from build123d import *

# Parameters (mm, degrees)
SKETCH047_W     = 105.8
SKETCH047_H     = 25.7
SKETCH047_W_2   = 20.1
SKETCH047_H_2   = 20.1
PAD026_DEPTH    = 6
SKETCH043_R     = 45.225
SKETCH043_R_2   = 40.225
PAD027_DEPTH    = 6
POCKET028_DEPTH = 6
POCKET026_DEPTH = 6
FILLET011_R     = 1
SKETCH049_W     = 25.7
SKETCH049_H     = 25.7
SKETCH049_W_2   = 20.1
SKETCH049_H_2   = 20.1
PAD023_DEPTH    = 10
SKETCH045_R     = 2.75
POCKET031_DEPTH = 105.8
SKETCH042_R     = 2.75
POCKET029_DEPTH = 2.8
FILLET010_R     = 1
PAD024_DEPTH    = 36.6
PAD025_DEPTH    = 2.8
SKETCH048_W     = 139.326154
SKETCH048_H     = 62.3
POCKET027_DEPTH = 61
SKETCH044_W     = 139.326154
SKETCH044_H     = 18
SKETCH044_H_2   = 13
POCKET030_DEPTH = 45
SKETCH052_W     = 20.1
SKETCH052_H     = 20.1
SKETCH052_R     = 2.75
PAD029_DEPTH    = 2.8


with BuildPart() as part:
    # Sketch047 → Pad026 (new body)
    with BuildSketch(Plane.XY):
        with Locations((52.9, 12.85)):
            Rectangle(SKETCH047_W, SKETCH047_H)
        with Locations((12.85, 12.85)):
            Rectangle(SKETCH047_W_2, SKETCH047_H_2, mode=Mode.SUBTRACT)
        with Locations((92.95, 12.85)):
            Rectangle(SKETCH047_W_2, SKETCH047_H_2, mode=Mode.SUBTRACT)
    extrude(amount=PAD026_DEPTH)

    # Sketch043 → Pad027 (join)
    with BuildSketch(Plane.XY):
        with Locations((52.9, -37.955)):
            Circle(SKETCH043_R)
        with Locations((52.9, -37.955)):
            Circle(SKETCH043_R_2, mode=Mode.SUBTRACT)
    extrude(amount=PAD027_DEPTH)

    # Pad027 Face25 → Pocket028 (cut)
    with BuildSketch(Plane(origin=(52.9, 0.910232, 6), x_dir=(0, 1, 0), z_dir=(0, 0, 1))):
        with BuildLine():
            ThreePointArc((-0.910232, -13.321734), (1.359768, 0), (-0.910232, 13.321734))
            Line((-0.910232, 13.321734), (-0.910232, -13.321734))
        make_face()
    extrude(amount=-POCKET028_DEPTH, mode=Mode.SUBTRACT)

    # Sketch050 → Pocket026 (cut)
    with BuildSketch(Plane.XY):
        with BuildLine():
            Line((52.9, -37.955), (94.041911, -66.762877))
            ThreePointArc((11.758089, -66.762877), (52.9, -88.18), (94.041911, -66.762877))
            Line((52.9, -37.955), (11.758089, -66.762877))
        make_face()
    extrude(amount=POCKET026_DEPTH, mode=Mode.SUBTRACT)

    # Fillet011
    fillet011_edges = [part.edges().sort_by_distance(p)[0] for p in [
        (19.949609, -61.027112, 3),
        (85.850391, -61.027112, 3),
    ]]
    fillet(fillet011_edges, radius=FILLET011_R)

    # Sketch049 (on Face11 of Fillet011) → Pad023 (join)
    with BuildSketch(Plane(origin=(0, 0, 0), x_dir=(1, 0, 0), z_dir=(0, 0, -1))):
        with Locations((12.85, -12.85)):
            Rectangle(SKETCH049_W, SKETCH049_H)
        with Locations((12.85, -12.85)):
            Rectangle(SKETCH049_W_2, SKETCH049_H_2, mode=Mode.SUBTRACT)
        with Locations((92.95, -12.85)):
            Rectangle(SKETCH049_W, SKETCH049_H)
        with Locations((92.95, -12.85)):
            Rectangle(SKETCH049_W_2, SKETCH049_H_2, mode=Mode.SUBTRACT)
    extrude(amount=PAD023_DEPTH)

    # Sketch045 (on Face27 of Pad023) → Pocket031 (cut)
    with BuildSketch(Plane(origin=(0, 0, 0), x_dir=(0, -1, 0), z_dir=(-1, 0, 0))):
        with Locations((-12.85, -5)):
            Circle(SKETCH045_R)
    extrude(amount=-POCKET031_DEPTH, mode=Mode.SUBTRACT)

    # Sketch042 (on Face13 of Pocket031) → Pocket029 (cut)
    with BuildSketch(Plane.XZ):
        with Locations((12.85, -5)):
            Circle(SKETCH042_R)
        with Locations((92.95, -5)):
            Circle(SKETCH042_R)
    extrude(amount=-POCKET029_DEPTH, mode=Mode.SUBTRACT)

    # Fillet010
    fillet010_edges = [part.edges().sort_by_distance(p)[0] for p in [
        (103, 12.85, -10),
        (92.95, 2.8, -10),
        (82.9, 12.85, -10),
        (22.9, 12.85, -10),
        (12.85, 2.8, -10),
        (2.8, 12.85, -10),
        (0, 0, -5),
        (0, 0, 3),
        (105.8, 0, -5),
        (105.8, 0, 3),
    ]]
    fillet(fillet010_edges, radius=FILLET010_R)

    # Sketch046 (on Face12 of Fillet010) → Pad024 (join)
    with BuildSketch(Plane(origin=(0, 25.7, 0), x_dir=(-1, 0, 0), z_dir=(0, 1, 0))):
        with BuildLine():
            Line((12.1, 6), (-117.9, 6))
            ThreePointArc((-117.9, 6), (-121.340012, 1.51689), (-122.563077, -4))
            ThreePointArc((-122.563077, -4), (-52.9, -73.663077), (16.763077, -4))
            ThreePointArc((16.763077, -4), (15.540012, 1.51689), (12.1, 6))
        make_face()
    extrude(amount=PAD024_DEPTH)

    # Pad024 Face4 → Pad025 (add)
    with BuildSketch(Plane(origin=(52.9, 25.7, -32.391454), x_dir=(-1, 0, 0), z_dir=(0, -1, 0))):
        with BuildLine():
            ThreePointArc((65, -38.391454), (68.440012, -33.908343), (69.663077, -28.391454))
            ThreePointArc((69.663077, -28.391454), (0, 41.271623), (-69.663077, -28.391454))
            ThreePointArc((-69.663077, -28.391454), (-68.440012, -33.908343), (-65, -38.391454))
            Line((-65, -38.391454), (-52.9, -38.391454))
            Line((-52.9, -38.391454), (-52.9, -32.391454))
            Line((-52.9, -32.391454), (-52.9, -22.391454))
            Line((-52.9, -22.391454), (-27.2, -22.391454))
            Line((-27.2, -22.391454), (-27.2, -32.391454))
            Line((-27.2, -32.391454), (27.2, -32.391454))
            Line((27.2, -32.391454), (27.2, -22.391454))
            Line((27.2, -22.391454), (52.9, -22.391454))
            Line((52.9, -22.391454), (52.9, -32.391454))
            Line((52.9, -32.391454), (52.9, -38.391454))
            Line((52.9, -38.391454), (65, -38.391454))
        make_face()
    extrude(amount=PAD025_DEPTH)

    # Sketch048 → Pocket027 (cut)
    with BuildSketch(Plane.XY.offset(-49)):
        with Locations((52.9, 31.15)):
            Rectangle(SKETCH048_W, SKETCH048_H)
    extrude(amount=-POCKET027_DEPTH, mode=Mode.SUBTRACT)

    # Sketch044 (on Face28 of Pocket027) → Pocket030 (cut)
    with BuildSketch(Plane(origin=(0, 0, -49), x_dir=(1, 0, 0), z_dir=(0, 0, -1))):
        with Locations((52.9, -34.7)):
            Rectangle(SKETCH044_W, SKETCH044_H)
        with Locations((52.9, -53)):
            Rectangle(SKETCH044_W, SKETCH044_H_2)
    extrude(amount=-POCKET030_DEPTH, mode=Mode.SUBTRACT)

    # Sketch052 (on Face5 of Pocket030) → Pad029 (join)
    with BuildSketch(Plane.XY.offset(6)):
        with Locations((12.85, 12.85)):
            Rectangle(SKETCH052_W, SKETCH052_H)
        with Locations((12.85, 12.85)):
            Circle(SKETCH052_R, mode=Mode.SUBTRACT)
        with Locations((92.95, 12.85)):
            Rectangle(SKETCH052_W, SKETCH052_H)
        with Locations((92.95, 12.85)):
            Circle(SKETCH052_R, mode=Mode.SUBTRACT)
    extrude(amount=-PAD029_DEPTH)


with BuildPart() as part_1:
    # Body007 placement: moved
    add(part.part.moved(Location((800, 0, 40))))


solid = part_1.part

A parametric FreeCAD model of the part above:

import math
import FreeCAD as App
import Part
import Sketcher
from FreeCAD import Vector
Q = App.Units.Quantity


def edges_at(feature, points):
    """Names of the edges that pass closest to the given points."""
    edges = feature.Shape.Edges
    near = lambda p: min(range(len(edges)), key=lambda i: edges[i].distToShape(Part.Vertex(*p))[0])
    return sorted({f"Edge{near(p) + 1}" for p in points})

doc = App.newDocument("Part")
body = doc.addObject("PartDesign::Body", "Body")

sketch1 = body.newObject("Sketcher::SketchObject", "Sketch")
sketch1.AttachmentSupport = (doc.getObject("XY_Plane"), [""])
sketch1.MapMode = "FlatFace"
sketch1.addGeometry([
    Part.LineSegment(Vector(0, 26, 0), Vector(0, 0, 0)),
    Part.LineSegment(Vector(0, 0, 0), Vector(106, 0, 0)),
    Part.LineSegment(Vector(106, 0, 0), Vector(106, 26, 0)),
    Part.LineSegment(Vector(106, 26, 0), Vector(0, 26, 0)),
    Part.LineSegment(Vector(23, 3, 0), Vector(3, 3, 0)),
    Part.LineSegment(Vector(3, 3, 0), Vector(3, 23, 0)),
    Part.LineSegment(Vector(3, 23, 0), Vector(23, 23, 0)),
    Part.LineSegment(Vector(23, 23, 0), Vector(23, 3, 0)),
    Part.LineSegment(Vector(103, 3, 0), Vector(83, 3, 0)),
    Part.LineSegment(Vector(83, 3, 0), Vector(83, 23, 0)),
    Part.LineSegment(Vector(83, 23, 0), Vector(103, 23, 0)),
    Part.LineSegment(Vector(103, 23, 0), Vector(103, 3, 0)),
], False)
sketch1.addConstraint([
    Sketcher.Constraint("Coincident", 0, 2, 1, 1),
    Sketcher.Constraint("Coincident", 1, 2, 2, 1),
    Sketcher.Constraint("Coincident", 2, 2, 3, 1),
    Sketcher.Constraint("Coincident", 3, 2, 0, 1),
    Sketcher.Constraint("Coincident", 4, 2, 5, 1),
    Sketcher.Constraint("Coincident", 5, 2, 6, 1),
    Sketcher.Constraint("Coincident", 6, 2, 7, 1),
    Sketcher.Constraint("Coincident", 7, 2, 4, 1),
    Sketcher.Constraint("Coincident", 8, 2, 9, 1),
    Sketcher.Constraint("Coincident", 9, 2, 10, 1),
    Sketcher.Constraint("Coincident", 10, 2, 11, 1),
    Sketcher.Constraint("Coincident", 11, 2, 8, 1),
    Sketcher.Constraint("Vertical", 0),
    Sketcher.Constraint("Horizontal", 1),
    Sketcher.Constraint("Vertical", 2),
    Sketcher.Constraint("Horizontal", 3),
    Sketcher.Constraint("Horizontal", 4),
    Sketcher.Constraint("Vertical", 5),
    Sketcher.Constraint("Horizontal", 6),
    Sketcher.Constraint("Vertical", 7),
    Sketcher.Constraint("Horizontal", 8),
    Sketcher.Constraint("Vertical", 9),
    Sketcher.Constraint("Horizontal", 10),
    Sketcher.Constraint("Vertical", 11),
    Sketcher.Constraint("Coincident", 0, 2, -1, 1),
    Sketcher.Constraint("Horizontal", 7, 2, 8, 2),
    Sketcher.Constraint("Horizontal", 6, 2, 9, 2),
    Sketcher.Constraint("Equal", 6, 8),
    Sketcher.Constraint("Equal", 10, 5),
    Sketcher.Constraint("DistanceX", 1, 1, 1, 2, Q("105.8 mm")),
    Sketcher.Constraint("DistanceX", 4, 2, 4, 1, Q("20.1 mm")),
    Sketcher.Constraint("DistanceY", 0, 2, 0, 1, Q("25.7 mm")),
    Sketcher.Constraint("DistanceX", -1, 1, 10, 2, Q("103 mm")),
    Sketcher.Constraint("DistanceX", 4, 2, 1, 2, Q("103 mm")),
    Sketcher.Constraint("DistanceY", -1, 1, 4, 2, Q("2.8 mm")),
])
pad1 = body.newObject("PartDesign::Pad", "Pad")
pad1.Profile = sketch1
pad1.Length = 6

sketch2 = body.newObject("Sketcher::SketchObject", "Sketch001")
sketch2.AttachmentSupport = (doc.getObject("XY_Plane"), [""])
sketch2.MapMode = "FlatFace"
sketch2.addGeometry([
    Part.Circle(Vector(53, -38, 0), Vector(0, 0, 1), 45),
    Part.Circle(Vector(53, -38, 0), Vector(0, 0, 1), 40),
], False)
sketch2.addConstraint([
    Sketcher.Constraint("Coincident", 1, 3, 0, 3),
    Sketcher.Constraint("Diameter", 0, Q("90.45 mm")),
    Sketcher.Constraint("Diameter", 1, Q("80.45 mm")),
    Sketcher.Constraint("DistanceX", -1, 1, 0, 3, Q("52.9 mm")),
    Sketcher.Constraint("DistanceY", 0, 3, -1, 1, Q("37.955 mm")),
])
pad2 = body.newObject("PartDesign::Pad", "Pad001")
pad2.Profile = sketch2
pad2.Length = 6

sketch3 = body.newObject("Sketcher::SketchObject", "Sketch002")
sketch3.AttachmentSupport = (doc.getObject("XY_Plane"), [""])
sketch3.MapMode = "FlatFace"
sketch3.AttachmentOffset = App.Placement(Vector(0, 0, 6), App.Rotation())
sketch3.addGeometry([
    Part.ArcOfCircle(Part.Circle(Vector(53, -38, 0), Vector(0, 0, 1), 40), math.radians(71), math.radians(109)),
    Part.LineSegment(Vector(40, 0, 0), Vector(66, 0, 0)),
], False)
sketch3.addConstraint([
    Sketcher.Constraint("Coincident", 0, 1, 1, 2),
    Sketcher.Constraint("Coincident", 1, 1, 0, 2),
    Sketcher.Constraint("Horizontal", 1),
    Sketcher.Constraint("PointOnObject", 0, 1, -1),
    Sketcher.Constraint("Radius", 0, Q("40.224999 mm")),
    Sketcher.Constraint("DistanceX", -1, 1, 0, 3, Q("52.9 mm")),
    Sketcher.Constraint("DistanceY", 0, 3, -1, 1, Q("37.954999 mm")),
])
pocket1 = body.newObject("PartDesign::Pocket", "Pocket")
pocket1.Profile = sketch3
pocket1.Length = 6

sketch4 = body.newObject("Sketcher::SketchObject", "Sketch003")
sketch4.AttachmentSupport = (doc.getObject("XY_Plane"), [""])
sketch4.MapMode = "FlatFace"
sketch4.addGeometry([
    Part.LineSegment(Vector(94, -67, 0), Vector(53, -38, 0)),
    Part.LineSegment(Vector(53, -38, 0), Vector(12, -67, 0)),
    Part.ArcOfCircle(Part.Circle(Vector(53, -38, 0), Vector(0, 0, 1), 50), math.radians(-145), math.radians(-35)),
], False)
sketch4.addConstraint([
    Sketcher.Constraint("Coincident", 0, 2, 1, 1),
    Sketcher.Constraint("Coincident", 1, 2, 2, 1),
    Sketcher.Constraint("Coincident", 2, 2, 0, 1),
    Sketcher.Constraint("Coincident", 0, 2, 2, 3),
    Sketcher.Constraint("Horizontal", 1, 2, 2, 2),
    Sketcher.Constraint("Angle", 0, Q("144.999999 deg")),
    Sketcher.Constraint("Radius", 2, Q("50.225 mm")),
    Sketcher.Constraint("DistanceX", -1, 1, 2, 3, Q("52.9 mm")),
    Sketcher.Constraint("DistanceY", 2, 3, -1, 1, Q("37.955 mm")),
])
pocket2 = body.newObject("PartDesign::Pocket", "Pocket001")
pocket2.Profile = sketch4
pocket2.Length = 6
pocket2.Reversed = True
doc.recompute()

fillet = body.newObject("PartDesign::Fillet", "Fillet")
fillet.Base = (pocket2, edges_at(pocket2, [(19.95, -61.027, 3), (85.85, -61.027, 3)]))
fillet.Radius = 1

sketch5 = body.newObject("Sketcher::SketchObject", "Sketch004")
sketch5.AttachmentSupport = (doc.getObject("XY_Plane"), [""])
sketch5.MapMode = "FlatFace"
sketch5.addGeometry([
    Part.LineSegment(Vector(0, 0, 0), Vector(0, 26, 0)),
    Part.LineSegment(Vector(0, 26, 0), Vector(26, 26, 0)),
    Part.LineSegment(Vector(26, 26, 0), Vector(26, 0, 0)),
    Part.LineSegment(Vector(26, 0, 0), Vector(0, 0, 0)),
    Part.LineSegment(Vector(23, 23, 0), Vector(3, 23, 0)),
    Part.LineSegment(Vector(3, 23, 0), Vector(3, 3, 0)),
    Part.LineSegment(Vector(3, 3, 0), Vector(23, 3, 0)),
    Part.LineSegment(Vector(23, 3, 0), Vector(23, 23, 0)),
    Part.LineSegment(Vector(80, 0, 0), Vector(80, 26, 0)),
    Part.LineSegment(Vector(80, 26, 0), Vector(106, 26, 0)),
    Part.LineSegment(Vector(106, 26, 0), Vector(106, 0, 0)),
    Part.LineSegment(Vector(106, 0, 0), Vector(80, 0, 0)),
    Part.LineSegment(Vector(103, 23, 0), Vector(83, 23, 0)),
    Part.LineSegment(Vector(83, 23, 0), Vector(83, 3, 0)),
    Part.LineSegment(Vector(83, 3, 0), Vector(103, 3, 0)),
    Part.LineSegment(Vector(103, 3, 0), Vector(103, 23, 0)),
], False)
sketch5.addConstraint([
    Sketcher.Constraint("Coincident", 0, 2, 1, 1),
    Sketcher.Constraint("Coincident", 1, 2, 2, 1),
    Sketcher.Constraint("Coincident", 2, 2, 3, 1),
    Sketcher.Constraint("Coincident", 3, 2, 0, 1),
    Sketcher.Constraint("Coincident", 4, 2, 5, 1),
    Sketcher.Constraint("Coincident", 5, 2, 6, 1),
    Sketcher.Constraint("Coincident", 6, 2, 7, 1),
    Sketcher.Constraint("Coincident", 7, 2, 4, 1),
    Sketcher.Constraint("Coincident", 8, 2, 9, 1),
    Sketcher.Constraint("Coincident", 9, 2, 10, 1),
    Sketcher.Constraint("Coincident", 10, 2, 11, 1),
    Sketcher.Constraint("Coincident", 11, 2, 8, 1),
    Sketcher.Constraint("Coincident", 12, 2, 13, 1),
    Sketcher.Constraint("Coincident", 13, 2, 14, 1),
    Sketcher.Constraint("Coincident", 14, 2, 15, 1),
    Sketcher.Constraint("Coincident", 15, 2, 12, 1),
    Sketcher.Constraint("Vertical", 0),
    Sketcher.Constraint("Horizontal", 1),
    Sketcher.Constraint("Vertical", 2),
    Sketcher.Constraint("Horizontal", 3),
    Sketcher.Constraint("Horizontal", 4),
    Sketcher.Constraint("Vertical", 5),
    Sketcher.Constraint("Horizontal", 6),
    Sketcher.Constraint("Vertical", 7),
    Sketcher.Constraint("Vertical", 8),
    Sketcher.Constraint("Horizontal", 9),
    Sketcher.Constraint("Vertical", 10),
    Sketcher.Constraint("Horizontal", 11),
    Sketcher.Constraint("Horizontal", 12),
    Sketcher.Constraint("Vertical", 13),
    Sketcher.Constraint("Horizontal", 14),
    Sketcher.Constraint("Vertical", 15),
    Sketcher.Constraint("Coincident", 3, 2, -1, 1),
    Sketcher.Constraint("PointOnObject", 10, 2, -1),
    Sketcher.Constraint("Horizontal", 1, 2, 8, 2),
    Sketcher.Constraint("Horizontal", 7, 2, 12, 2),
    Sketcher.Constraint("Horizontal", 6, 2, 13, 2),
    Sketcher.Constraint("Equal", 3, 9),
    Sketcher.Constraint("Equal", 6, 12),
    Sketcher.Constraint("Equal", 11, 0),
    Sketcher.Constraint("Equal", 14, 5),
    Sketcher.Constraint("DistanceX", 1, 1, 1, 2, Q("25.7 mm")),
    Sketcher.Constraint("DistanceX", 4, 2, 4, 1, Q("20.1 mm")),
    Sketcher.Constraint("DistanceX", -1, 1, 14, 2, Q("103 mm")),
    Sketcher.Constraint("DistanceX", -1, 1, 4, 2, Q("2.8 mm")),
    Sketcher.Constraint("DistanceY", -1, 1, 4, 2, Q("22.9 mm")),
    Sketcher.Constraint("DistanceX", -1, 1, 8, 2, Q("80.1 mm")),
])
pad3 = body.newObject("PartDesign::Pad", "Pad002")
pad3.Profile = sketch5
pad3.Length = 10
pad3.Reversed = True

sketch6 = body.newObject("Sketcher::SketchObject", "Sketch005")
sketch6.AttachmentSupport = (doc.getObject("YZ_Plane"), [""])
sketch6.MapMode = "FlatFace"
sketch6.addGeometry(Part.Circle(Vector(12.8, -5, 0), Vector(0, 0, 1), 2.8), False)
sketch6.addConstraint([
    Sketcher.Constraint("Diameter", 0, Q("5.5 mm")),
    Sketcher.Constraint("DistanceY", 0, 3, -1, 1, Q("5 mm")),
    Sketcher.Constraint("DistanceX", -1, 1, 0, 3, Q("12.85 mm")),
])
pocket3 = body.newObject("PartDesign::Pocket", "Pocket002")
pocket3.Profile = sketch6
pocket3.Length = 105.8
pocket3.Reversed = True

sketch7 = body.newObject("Sketcher::SketchObject", "Sketch006")
sketch7.AttachmentSupport = (doc.getObject("XZ_Plane"), [""])
sketch7.MapMode = "FlatFace"
sketch7.addGeometry([
    Part.Circle(Vector(12.8, -5, 0), Vector(0, 0, 1), 2.8),
    Part.Circle(Vector(93, -5, 0), Vector(0, 0, 1), 2.8),
], False)
sketch7.addConstraint([
    Sketcher.Constraint("Equal", 0, 1),
    Sketcher.Constraint("Horizontal", 0, 3, 1, 3),
    Sketcher.Constraint("Diameter", 0, Q("5.5 mm")),
    Sketcher.Constraint("DistanceY", 0, 3, -1, 1, Q("5 mm")),
    Sketcher.Constraint("DistanceX", 0, 3, 1, 3, Q("80.1 mm")),
    Sketcher.Constraint("DistanceX", -1, 1, 0, 3, Q("12.85 mm")),
])
pocket4 = body.newObject("PartDesign::Pocket", "Pocket003")
pocket4.Profile = sketch7
pocket4.Length = 2.8
doc.recompute()

fillet2 = body.newObject("PartDesign::Fillet", "Fillet001")
fillet2.Base = (pocket4, edges_at(pocket4, [
    (103, 12.85, -10),
    (92.95, 2.8, -10),
    (82.9, 12.85, -10),
    (22.9, 12.85, -10),
    (12.85, 2.8, -10),
    (2.8, 12.85, -10),
    (0, 0, -2),
    (0, 0, -2),
    (105.8, 0, -2),
    (105.8, 0, -2),
]))
fillet2.Radius = 1

sketch8 = body.newObject("Sketcher::SketchObject", "Sketch007")
sketch8.AttachmentSupport = (doc.getObject("XZ_Plane"), [""])
sketch8.MapMode = "FlatFace"
sketch8.AttachmentOffset = App.Placement(Vector(0, 0, -25.7), App.Rotation())
sketch8.addGeometry([
    Part.LineSegment(Vector(-12, 6, 0), Vector(118, 6, 0)),
    Part.ArcOfCircle(Part.Circle(Vector(110, -4, 0), Vector(0, 0, 1), 13), math.radians(0), math.radians(50)),
    Part.ArcOfCircle(Part.Circle(Vector(53, -4, 0), Vector(0, 0, 1), 70), math.radians(180), math.radians(360)),
    Part.ArcOfCircle(Part.Circle(Vector(-4, -4, 0), Vector(0, 0, 1), 13), math.radians(130), math.radians(180)),
], False)
sketch8.addConstraint([
    Sketcher.Constraint("Coincident", 0, 2, 1, 2),
    Sketcher.Constraint("Tangent", 1, 1, 2, 2),
    Sketcher.Constraint("Tangent", 2, 1, 3, 2),
    Sketcher.Constraint("Coincident", 3, 1, 0, 1),
    Sketcher.Constraint("Horizontal", 0),
    Sketcher.Constraint("Equal", 1, 3),
    Sketcher.Constraint("Horizontal", 1, 3, 2, 3),
    Sketcher.Constraint("Horizontal", 2, 3, 3, 3),
    Sketcher.Constraint("DistanceX", 0, 1, 0, 2, Q("130 mm")),
    Sketcher.Constraint("DistanceY", 1, 3, -1, 1, Q("3.999999 mm")),
    Sketcher.Constraint("DistanceY", -1, 1, 0, 2, Q("6 mm")),
    Sketcher.Constraint("DistanceX", -1, 1, 2, 3, Q("52.9 mm")),
    Sketcher.Constraint("Radius", 1, Q("13.05407 mm")),
])
pad4 = body.newObject("PartDesign::Pad", "Pad003")
pad4.Profile = sketch8
pad4.Length = 36.6
pad4.Reversed = True

sketch9 = body.newObject("Sketcher::SketchObject", "Sketch008")
sketch9.AttachmentSupport = (doc.getObject("XZ_Plane"), [""])
sketch9.MapMode = "FlatFace"
sketch9.AttachmentOffset = App.Placement(Vector(0, 0, -25.7), App.Rotation())
sketch9.addGeometry([
    Part.ArcOfCircle(Part.Circle(Vector(-4, -4, 0), Vector(0, 0, 1), 13), math.radians(130), math.radians(180)),
    Part.ArcOfCircle(Part.Circle(Vector(53, -4, 0), Vector(0, 0, 1), 70), math.radians(180), math.radians(360)),
    Part.ArcOfCircle(Part.Circle(Vector(110, -4, 0), Vector(0, 0, 1), 13), math.radians(0), math.radians(50)),
    Part.LineSegment(Vector(118, 6, 0), Vector(106, 6, 0)),
    Part.LineSegment(Vector(106, 6, 0), Vector(106, -10, 0)),
    Part.LineSegment(Vector(106, -10, 0), Vector(80, -10, 0)),
    Part.LineSegment(Vector(80, -10, 0), Vector(80, 0, 0)),
    Part.LineSegment(Vector(80, 0, 0), Vector(26, 0, 0)),
    Part.LineSegment(Vector(26, 0, 0), Vector(26, -10, 0)),
    Part.LineSegment(Vector(26, -10, 0), Vector(0, -10, 0)),
    Part.LineSegment(Vector(0, -10, 0), Vector(0, 6, 0)),
    Part.LineSegment(Vector(0, 6, 0), Vector(-12, 6, 0)),
], False)
sketch9.addConstraint([
    Sketcher.Constraint("Tangent", 0, 2, 1, 1),
    Sketcher.Constraint("Tangent", 1, 2, 2, 1),
    Sketcher.Constraint("Coincident", 2, 2, 3, 1),
    Sketcher.Constraint("Coincident", 3, 2, 4, 1),
    Sketcher.Constraint("Coincident", 4, 2, 5, 1),
    Sketcher.Constraint("Coincident", 5, 2, 6, 1),
    Sketcher.Constraint("Coincident", 6, 2, 7, 1),
    Sketcher.Constraint("Coincident", 7, 2, 8, 1),
    Sketcher.Constraint("Coincident", 8, 2, 9, 1),
    Sketcher.Constraint("Coincident", 9, 2, 10, 1),
    Sketcher.Constraint("Coincident", 10, 2, 11, 1),
    Sketcher.Constraint("Coincident", 11, 2, 0, 1),
    Sketcher.Constraint("Horizontal", 3),
    Sketcher.Constraint("Vertical", 4),
    Sketcher.Constraint("Horizontal", 5),
    Sketcher.Constraint("Vertical", 6),
    Sketcher.Constraint("Horizontal", 7),
    Sketcher.Constraint("Vertical", 8),
    Sketcher.Constraint("Horizontal", 9),
    Sketcher.Constraint("Vertical", 10),
    Sketcher.Constraint("Horizontal", 11),
    Sketcher.Constraint("Equal", 0, 2),
    Sketcher.Constraint("PointOnObject", 6, 2, -1),
    Sketcher.Constraint("PointOnObject", 9, 2, -2),
    Sketcher.Constraint("Horizontal", 0, 3, 1, 3),
    Sketcher.Constraint("Horizontal", 1, 3, 2, 3),
    Sketcher.Constraint("Horizontal", 5, 2, 8, 2),
    Sketcher.Constraint("Horizontal", 3, 2, 10, 2),
    Sketcher.Constraint("Equal", 5, 9),
    Sketcher.Constraint("Equal", 3, 11),
    Sketcher.Constraint("DistanceY", 4, 2, 4, 1, Q("16 mm")),
    Sketcher.Constraint("DistanceY", 6, 1, 6, 2, Q("10 mm")),
    Sketcher.Constraint("DistanceX", 3, 2, 3, 1, Q("12.1 mm")),
    Sketcher.Constraint("DistanceX", 5, 2, 5, 1, Q("25.7 mm")),
    Sketcher.Constraint("DistanceX", 7, 2, 7, 1, Q("54.4 mm")),
    Sketcher.Constraint("DistanceY", 0, 3, -1, 1, Q("4.000001 mm")),
    Sketcher.Constraint("Radius", 0, Q("13.054074 mm")),
])
pad5 = body.newObject("PartDesign::Pad", "Pad004")
pad5.Profile = sketch9
pad5.Length = 2.8

sketch10 = body.newObject("Sketcher::SketchObject", "Sketch009")
sketch10.AttachmentSupport = (doc.getObject("XY_Plane"), [""])
sketch10.MapMode = "FlatFace"
sketch10.AttachmentOffset = App.Placement(Vector(0, 0, -49), App.Rotation())
sketch10.addGeometry([
    Part.LineSegment(Vector(-17, 62, 0), Vector(-17, 0, 0)),
    Part.LineSegment(Vector(-17, 0, 0), Vector(123, 0, 0)),
    Part.LineSegment(Vector(123, 0, 0), Vector(123, 62, 0)),
    Part.LineSegment(Vector(123, 62, 0), Vector(-17, 62, 0)),
], False)
sketch10.addConstraint([
    Sketcher.Constraint("Coincident", 0, 2, 1, 1),
    Sketcher.Constraint("Coincident", 1, 2, 2, 1),
    Sketcher.Constraint("Coincident", 2, 2, 3, 1),
    Sketcher.Constraint("Coincident", 3, 2, 0, 1),
    Sketcher.Constraint("Vertical", 0),
    Sketcher.Constraint("Horizontal", 1),
    Sketcher.Constraint("Vertical", 2),
    Sketcher.Constraint("Horizontal", 3),
    Sketcher.Constraint("PointOnObject", 0, 2, -1),
    Sketcher.Constraint("DistanceY", 0, 2, 0, 1, Q("62.3 mm")),
    Sketcher.Constraint("DistanceX", 1, 1, 1, 2, Q("139.326154 mm")),
    Sketcher.Constraint("DistanceX", 0, 2, -1, 1, Q("16.763077 mm")),
])
pocket5 = body.newObject("PartDesign::Pocket", "Pocket004")
pocket5.Profile = sketch10
pocket5.Length = 61

sketch11 = body.newObject("Sketcher::SketchObject", "Sketch010")
sketch11.AttachmentSupport = (doc.getObject("XY_Plane"), [""])
sketch11.MapMode = "FlatFace"
sketch11.AttachmentOffset = App.Placement(Vector(0, 0, -49), App.Rotation())
sketch11.addGeometry([
    Part.LineSegment(Vector(-17, 26, 0), Vector(-17, 44, 0)),
    Part.LineSegment(Vector(-17, 44, 0), Vector(123, 44, 0)),
    Part.LineSegment(Vector(123, 44, 0), Vector(123, 26, 0)),
    Part.LineSegment(Vector(123, 26, 0), Vector(-17, 26, 0)),
    Part.LineSegment(Vector(-17, 46, 0), Vector(-17, 60, 0)),
    Part.LineSegment(Vector(-17, 60, 0), Vector(123, 60, 0)),
    Part.LineSegment(Vector(123, 60, 0), Vector(123, 46, 0)),
    Part.LineSegment(Vector(123, 46, 0), Vector(-17, 46, 0)),
], False)
sketch11.addConstraint([
    Sketcher.Constraint("Coincident", 0, 2, 1, 1),
    Sketcher.Constraint("Coincident", 1, 2, 2, 1),
    Sketcher.Constraint("Coincident", 2, 2, 3, 1),
    Sketcher.Constraint("Coincident", 3, 2, 0, 1),
    Sketcher.Constraint("Coincident", 4, 2, 5, 1),
    Sketcher.Constraint("Coincident", 5, 2, 6, 1),
    Sketcher.Constraint("Coincident", 6, 2, 7, 1),
    Sketcher.Constraint("Coincident", 7, 2, 4, 1),
    Sketcher.Constraint("Vertical", 0),
    Sketcher.Constraint("Horizontal", 1),
    Sketcher.Constraint("Vertical", 2),
    Sketcher.Constraint("Horizontal", 3),
    Sketcher.Constraint("Vertical", 4),
    Sketcher.Constraint("Horizontal", 5),
    Sketcher.Constraint("Vertical", 6),
    Sketcher.Constraint("Horizontal", 7),
    Sketcher.Constraint("Vertical", 3, 2, 4, 2),
    Sketcher.Constraint("Vertical", 2, 2, 5, 2),
    Sketcher.Constraint("DistanceY", 0, 1, 0, 2, Q("18 mm")),
    Sketcher.Constraint("DistanceY", 4, 1, 4, 2, Q("13 mm")),
    Sketcher.Constraint("DistanceY", -1, 1, 0, 2, Q("43.7 mm")),
    Sketcher.Constraint("DistanceY", -1, 1, 4, 2, Q("59.5 mm")),
    Sketcher.Constraint("DistanceX", 1, 1, 1, 2, Q("139.326154 mm")),
    Sketcher.Constraint("DistanceX", 0, 2, -1, 1, Q("16.763077 mm")),
])
pocket6 = body.newObject("PartDesign::Pocket", "Pocket005")
pocket6.Profile = sketch11
pocket6.Length = 45
pocket6.Reversed = True

sketch12 = body.newObject("Sketcher::SketchObject", "Sketch011")
sketch12.AttachmentSupport = (doc.getObject("XY_Plane"), [""])
sketch12.MapMode = "FlatFace"
sketch12.AttachmentOffset = App.Placement(Vector(0, 0, 6), App.Rotation())
sketch12.addGeometry([
    Part.LineSegment(Vector(2.8, 22.9, 0), Vector(2.8, 2.8, 0)),
    Part.LineSegment(Vector(2.8, 2.8, 0), Vector(22.9, 2.8, 0)),
    Part.LineSegment(Vector(22.9, 2.8, 0), Vector(22.9, 22.9, 0)),
    Part.LineSegment(Vector(22.9, 22.9, 0), Vector(2.8, 22.9, 0)),
    Part.Circle(Vector(12.8, 12.8, 0), Vector(0, 0, 1), 2.8),
    Part.LineSegment(Vector(82.9, 22.9, 0), Vector(82.9, 2.8, 0)),
    Part.LineSegment(Vector(82.9, 2.8, 0), Vector(103, 2.8, 0)),
    Part.LineSegment(Vector(103, 2.8, 0), Vector(103, 22.9, 0)),
    Part.LineSegment(Vector(103, 22.9, 0), Vector(82.9, 22.9, 0)),
    Part.Circle(Vector(93, 12.8, 0), Vector(0, 0, 1), 2.8),
], False)
sketch12.addConstraint([
    Sketcher.Constraint("Coincident", 0, 2, 1, 1),
    Sketcher.Constraint("Coincident", 1, 2, 2, 1),
    Sketcher.Constraint("Coincident", 2, 2, 3, 1),
    Sketcher.Constraint("Coincident", 3, 2, 0, 1),
    Sketcher.Constraint("Coincident", 5, 2, 6, 1),
    Sketcher.Constraint("Coincident", 6, 2, 7, 1),
    Sketcher.Constraint("Coincident", 7, 2, 8, 1),
    Sketcher.Constraint("Coincident", 8, 2, 5, 1),
    Sketcher.Constraint("Vertical", 0),
    Sketcher.Constraint("Horizontal", 1),
    Sketcher.Constraint("Vertical", 2),
    Sketcher.Constraint("Horizontal", 3),
    Sketcher.Constraint("Vertical", 5),
    Sketcher.Constraint("Horizontal", 6),
    Sketcher.Constraint("Vertical", 7),
    Sketcher.Constraint("Horizontal", 8),
    Sketcher.Constraint("Equal", 4, 9),
    Sketcher.Constraint("Horizontal", 4, 3, 9, 3),
    Sketcher.Constraint("Horizontal", 1, 2, 5, 2),
    Sketcher.Constraint("Horizontal", 3, 2, 7, 2),
    Sketcher.Constraint("Equal", 3, 6),
    Sketcher.Constraint("Equal", 8, 0),
    Sketcher.Constraint("Diameter", 4, Q("5.5 mm")),
    Sketcher.Constraint("DistanceX", 1, 1, 1, 2, Q("20.1 mm")),
    Sketcher.Constraint("DistanceX", -1, 1, 6, 2, Q("103 mm")),
    Sketcher.Constraint("DistanceX", 1, 2, 5, 2, Q("60 mm")),
    Sketcher.Constraint("DistanceY", -1, 1, 0, 2, Q("2.8 mm")),
    Sketcher.Constraint("DistanceX", 4, 3, 9, 3, Q("80.1 mm")),
    Sketcher.Constraint("DistanceX", -1, 1, 4, 3, Q("12.85 mm")),
    Sketcher.Constraint("DistanceY", -1, 1, 4, 3, Q("12.85 mm")),
])
pad6 = body.newObject("PartDesign::Pad", "Pad005")
pad6.Profile = sketch12
pad6.Length = 2.8
pad6.Reversed = True
body2 = doc.addObject("PartDesign::Body", "Body001")
doc.recompute()

body.Placement = App.Placement(Vector(800, 0, 40), App.Rotation(Vector(0, 0, 1), 0))
boolean = body2.newObject("PartDesign::Boolean", "Boolean")
boolean.Type = "Fuse"
boolean.addObjects([body])

doc.recompute()
